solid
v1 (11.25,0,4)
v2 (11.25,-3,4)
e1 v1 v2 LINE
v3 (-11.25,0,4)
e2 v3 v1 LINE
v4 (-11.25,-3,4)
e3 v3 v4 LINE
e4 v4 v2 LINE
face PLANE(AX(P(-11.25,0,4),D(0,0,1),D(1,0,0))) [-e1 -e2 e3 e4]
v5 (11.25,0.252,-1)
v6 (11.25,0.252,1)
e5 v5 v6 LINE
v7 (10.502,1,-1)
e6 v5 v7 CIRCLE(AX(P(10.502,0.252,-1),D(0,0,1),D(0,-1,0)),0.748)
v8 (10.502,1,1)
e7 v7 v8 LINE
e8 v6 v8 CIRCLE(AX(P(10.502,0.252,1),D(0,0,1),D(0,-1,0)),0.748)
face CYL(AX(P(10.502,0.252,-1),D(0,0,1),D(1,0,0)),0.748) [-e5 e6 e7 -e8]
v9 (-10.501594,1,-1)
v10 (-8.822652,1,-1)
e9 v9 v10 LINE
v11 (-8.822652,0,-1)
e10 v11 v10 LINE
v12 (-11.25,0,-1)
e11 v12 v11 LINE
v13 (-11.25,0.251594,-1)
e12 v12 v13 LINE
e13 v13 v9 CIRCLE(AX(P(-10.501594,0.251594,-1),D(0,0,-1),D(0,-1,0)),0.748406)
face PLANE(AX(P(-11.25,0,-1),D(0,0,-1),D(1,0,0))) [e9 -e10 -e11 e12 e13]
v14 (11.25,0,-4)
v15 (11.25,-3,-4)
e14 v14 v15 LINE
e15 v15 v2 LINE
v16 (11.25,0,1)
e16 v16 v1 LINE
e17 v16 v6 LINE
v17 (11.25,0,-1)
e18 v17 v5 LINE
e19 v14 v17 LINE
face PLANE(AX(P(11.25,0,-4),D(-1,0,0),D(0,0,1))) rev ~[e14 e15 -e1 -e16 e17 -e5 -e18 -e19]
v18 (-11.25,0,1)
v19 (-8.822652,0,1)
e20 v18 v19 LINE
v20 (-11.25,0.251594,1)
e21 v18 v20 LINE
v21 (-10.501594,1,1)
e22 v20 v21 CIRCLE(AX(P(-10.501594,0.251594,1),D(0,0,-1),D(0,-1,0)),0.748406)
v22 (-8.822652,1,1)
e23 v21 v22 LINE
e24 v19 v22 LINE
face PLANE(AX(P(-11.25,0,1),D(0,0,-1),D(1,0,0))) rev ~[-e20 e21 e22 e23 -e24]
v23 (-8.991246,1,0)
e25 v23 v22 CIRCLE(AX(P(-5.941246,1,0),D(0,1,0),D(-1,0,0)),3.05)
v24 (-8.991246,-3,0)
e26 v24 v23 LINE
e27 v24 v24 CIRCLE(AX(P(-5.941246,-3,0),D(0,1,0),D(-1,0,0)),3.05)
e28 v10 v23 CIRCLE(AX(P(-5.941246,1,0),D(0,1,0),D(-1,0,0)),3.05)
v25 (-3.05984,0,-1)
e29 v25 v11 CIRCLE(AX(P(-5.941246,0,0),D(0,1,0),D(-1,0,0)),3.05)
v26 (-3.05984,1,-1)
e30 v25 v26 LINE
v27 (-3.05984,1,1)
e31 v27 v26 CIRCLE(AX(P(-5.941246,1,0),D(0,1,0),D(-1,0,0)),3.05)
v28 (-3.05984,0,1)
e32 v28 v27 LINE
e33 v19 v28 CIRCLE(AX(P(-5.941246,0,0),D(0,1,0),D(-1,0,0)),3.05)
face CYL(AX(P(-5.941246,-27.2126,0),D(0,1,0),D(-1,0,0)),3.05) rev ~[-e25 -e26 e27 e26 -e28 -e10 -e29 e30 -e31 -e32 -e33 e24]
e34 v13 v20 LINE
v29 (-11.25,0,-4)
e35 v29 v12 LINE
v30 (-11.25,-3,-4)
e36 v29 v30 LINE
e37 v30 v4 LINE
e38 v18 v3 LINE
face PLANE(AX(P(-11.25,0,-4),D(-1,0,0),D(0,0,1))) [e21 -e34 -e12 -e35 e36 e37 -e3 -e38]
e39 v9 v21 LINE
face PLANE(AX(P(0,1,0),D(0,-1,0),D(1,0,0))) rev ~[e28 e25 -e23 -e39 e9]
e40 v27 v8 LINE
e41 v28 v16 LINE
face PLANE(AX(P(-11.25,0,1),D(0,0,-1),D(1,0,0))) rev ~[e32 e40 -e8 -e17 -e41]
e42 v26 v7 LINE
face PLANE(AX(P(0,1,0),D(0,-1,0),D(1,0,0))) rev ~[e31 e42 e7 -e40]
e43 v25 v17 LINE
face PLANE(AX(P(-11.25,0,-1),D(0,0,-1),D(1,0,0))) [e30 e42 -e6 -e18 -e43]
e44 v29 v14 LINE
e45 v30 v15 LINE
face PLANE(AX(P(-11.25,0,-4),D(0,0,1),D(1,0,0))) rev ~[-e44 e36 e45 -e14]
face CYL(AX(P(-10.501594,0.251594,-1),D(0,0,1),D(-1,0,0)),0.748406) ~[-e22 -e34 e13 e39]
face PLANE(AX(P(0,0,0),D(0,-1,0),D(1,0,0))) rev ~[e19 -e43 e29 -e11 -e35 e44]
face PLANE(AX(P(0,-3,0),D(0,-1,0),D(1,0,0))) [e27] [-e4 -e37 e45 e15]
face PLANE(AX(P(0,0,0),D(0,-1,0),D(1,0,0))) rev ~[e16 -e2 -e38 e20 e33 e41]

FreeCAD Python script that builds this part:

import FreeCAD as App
import Part
import Sketcher
from FreeCAD import Vector


def edges_at(feature, points):
    """Names of the edges that pass closest to the given points."""
    edges = feature.Shape.Edges
    near = lambda p: min(range(len(edges)), key=lambda i: edges[i].distToShape(Part.Vertex(*p))[0])
    return sorted({f"Edge{near(p) + 1}" for p in points})

doc = App.newDocument("Part")
body = doc.addObject("PartDesign::Body", "Body")

sketch1 = body.newObject("Sketcher::SketchObject", "Sketch")
sketch1.AttachmentSupport = (doc.getObject("XZ_Plane"), [""])
sketch1.MapMode = "FlatFace"
sketch1.addGeometry([
    Part.LineSegment(Vector(-11, 4, 0), Vector(-11, -4, 0)),
    Part.LineSegment(Vector(-11, -4, 0), Vector(11, -4, 0)),
    Part.LineSegment(Vector(11, -4, 0), Vector(11, 4, 0)),
    Part.LineSegment(Vector(11, 4, 0), Vector(-11, 4, 0)),
], False)
sketch1.addConstraint([
    Sketcher.Constraint("Coincident", 0, 2, 1, 1),
    Sketcher.Constraint("Coincident", 1, 2, 2, 1),
    Sketcher.Constraint("Coincident", 2, 2, 3, 1),
    Sketcher.Constraint("Coincident", 3, 2, 0, 1),
    Sketcher.Constraint("Vertical", 0),
    Sketcher.Constraint("Horizontal", 1),
    Sketcher.Constraint("Vertical", 2),
    Sketcher.Constraint("Horizontal", 3),
    Sketcher.Constraint("Symmetric", 0, 2, 2, 2, -1, 1),
    Sketcher.Constraint("DistanceY", 0, 2, 0, 1, 8.0),
    Sketcher.Constraint("DistanceX", 1, 1, 1, 2, 22.5),
])
pad1 = body.newObject("PartDesign::Pad", "Pad")
pad1.Profile = sketch1
pad1.Length = 3

sketch2 = body.newObject("Sketcher::SketchObject", "Sketch001")
sketch2.AttachmentSupport = (doc.getObject("XZ_Plane"), [""])
sketch2.MapMode = "FlatFace"
sketch2.addGeometry([
    Part.LineSegment(Vector(-11.2, 1, 0), Vector(-11.2, -1, 0)),
    Part.LineSegment(Vector(-11.2, -1, 0), Vector(11.2, -1, 0)),
    Part.LineSegment(Vector(11.2, -1, 0), Vector(11.2, 1, 0)),
    Part.LineSegment(Vector(11.2, 1, 0), Vector(-11.2, 1, 0)),
], False)
sketch2.addConstraint([
    Sketcher.Constraint("Coincident", 0, 2, 1, 1),
    Sketcher.Constraint("Coincident", 1, 2, 2, 1),
    Sketcher.Constraint("Coincident", 2, 2, 3, 1),
    Sketcher.Constraint("Coincident", 3, 2, 0, 1),
    Sketcher.Constraint("Vertical", 0),
    Sketcher.Constraint("Horizontal", 1),
    Sketcher.Constraint("Vertical", 2),
    Sketcher.Constraint("Horizontal", 3),
    Sketcher.Constraint("Symmetric", 0, 2, 2, 2, -1, 1),
    Sketcher.Constraint("DistanceY", 0, 2, 0, 1, 2.0),
    Sketcher.Constraint("DistanceX", 1, 1, 1, 2, 22.5),
])
pad2 = body.newObject("PartDesign::Pad", "Pad001")
pad2.Profile = sketch2
pad2.Length = 1
pad2.Reversed = True

sketch3 = body.newObject("Sketcher::SketchObject", "Sketch002")
sketch3.AttachmentSupport = (doc.getObject("XZ_Plane"), [""])
sketch3.MapMode = "FlatFace"
sketch3.AttachmentOffset = App.Placement(Vector(0, 0, 3), App.Rotation())
sketch3.addGeometry(Part.Circle(Vector(-5.9, 0, 0), Vector(0, 0, 1), 3), False)
sketch3.addConstraint([
    Sketcher.Constraint("PointOnObject", 0, 3, -1),
    Sketcher.Constraint("Diameter", 0, 6.1),
    Sketcher.Constraint("DistanceX", 0, 3, -1, 1, 5.941246),
])
doc.recompute()
hole = body.newObject("PartDesign::Hole", "Hole")
hole.Profile = sketch3
hole.ThreadType = "None"
hole.Diameter = 6.1
hole.DepthType = "ThroughAll"
doc.recompute()

fillet = body.newObject("PartDesign::Fillet", "Fillet")
fillet.Base = (hole, edges_at(hole, [(-11.25, 1, 0)]))
fillet.Radius = 0.748406
doc.recompute()

fillet2 = body.newObject("PartDesign::Fillet", "Fillet001")
fillet2.Base = (fillet, edges_at(fillet, [(11.25, 1, 0)]))
fillet2.Radius = 0.748

doc.recompute()
